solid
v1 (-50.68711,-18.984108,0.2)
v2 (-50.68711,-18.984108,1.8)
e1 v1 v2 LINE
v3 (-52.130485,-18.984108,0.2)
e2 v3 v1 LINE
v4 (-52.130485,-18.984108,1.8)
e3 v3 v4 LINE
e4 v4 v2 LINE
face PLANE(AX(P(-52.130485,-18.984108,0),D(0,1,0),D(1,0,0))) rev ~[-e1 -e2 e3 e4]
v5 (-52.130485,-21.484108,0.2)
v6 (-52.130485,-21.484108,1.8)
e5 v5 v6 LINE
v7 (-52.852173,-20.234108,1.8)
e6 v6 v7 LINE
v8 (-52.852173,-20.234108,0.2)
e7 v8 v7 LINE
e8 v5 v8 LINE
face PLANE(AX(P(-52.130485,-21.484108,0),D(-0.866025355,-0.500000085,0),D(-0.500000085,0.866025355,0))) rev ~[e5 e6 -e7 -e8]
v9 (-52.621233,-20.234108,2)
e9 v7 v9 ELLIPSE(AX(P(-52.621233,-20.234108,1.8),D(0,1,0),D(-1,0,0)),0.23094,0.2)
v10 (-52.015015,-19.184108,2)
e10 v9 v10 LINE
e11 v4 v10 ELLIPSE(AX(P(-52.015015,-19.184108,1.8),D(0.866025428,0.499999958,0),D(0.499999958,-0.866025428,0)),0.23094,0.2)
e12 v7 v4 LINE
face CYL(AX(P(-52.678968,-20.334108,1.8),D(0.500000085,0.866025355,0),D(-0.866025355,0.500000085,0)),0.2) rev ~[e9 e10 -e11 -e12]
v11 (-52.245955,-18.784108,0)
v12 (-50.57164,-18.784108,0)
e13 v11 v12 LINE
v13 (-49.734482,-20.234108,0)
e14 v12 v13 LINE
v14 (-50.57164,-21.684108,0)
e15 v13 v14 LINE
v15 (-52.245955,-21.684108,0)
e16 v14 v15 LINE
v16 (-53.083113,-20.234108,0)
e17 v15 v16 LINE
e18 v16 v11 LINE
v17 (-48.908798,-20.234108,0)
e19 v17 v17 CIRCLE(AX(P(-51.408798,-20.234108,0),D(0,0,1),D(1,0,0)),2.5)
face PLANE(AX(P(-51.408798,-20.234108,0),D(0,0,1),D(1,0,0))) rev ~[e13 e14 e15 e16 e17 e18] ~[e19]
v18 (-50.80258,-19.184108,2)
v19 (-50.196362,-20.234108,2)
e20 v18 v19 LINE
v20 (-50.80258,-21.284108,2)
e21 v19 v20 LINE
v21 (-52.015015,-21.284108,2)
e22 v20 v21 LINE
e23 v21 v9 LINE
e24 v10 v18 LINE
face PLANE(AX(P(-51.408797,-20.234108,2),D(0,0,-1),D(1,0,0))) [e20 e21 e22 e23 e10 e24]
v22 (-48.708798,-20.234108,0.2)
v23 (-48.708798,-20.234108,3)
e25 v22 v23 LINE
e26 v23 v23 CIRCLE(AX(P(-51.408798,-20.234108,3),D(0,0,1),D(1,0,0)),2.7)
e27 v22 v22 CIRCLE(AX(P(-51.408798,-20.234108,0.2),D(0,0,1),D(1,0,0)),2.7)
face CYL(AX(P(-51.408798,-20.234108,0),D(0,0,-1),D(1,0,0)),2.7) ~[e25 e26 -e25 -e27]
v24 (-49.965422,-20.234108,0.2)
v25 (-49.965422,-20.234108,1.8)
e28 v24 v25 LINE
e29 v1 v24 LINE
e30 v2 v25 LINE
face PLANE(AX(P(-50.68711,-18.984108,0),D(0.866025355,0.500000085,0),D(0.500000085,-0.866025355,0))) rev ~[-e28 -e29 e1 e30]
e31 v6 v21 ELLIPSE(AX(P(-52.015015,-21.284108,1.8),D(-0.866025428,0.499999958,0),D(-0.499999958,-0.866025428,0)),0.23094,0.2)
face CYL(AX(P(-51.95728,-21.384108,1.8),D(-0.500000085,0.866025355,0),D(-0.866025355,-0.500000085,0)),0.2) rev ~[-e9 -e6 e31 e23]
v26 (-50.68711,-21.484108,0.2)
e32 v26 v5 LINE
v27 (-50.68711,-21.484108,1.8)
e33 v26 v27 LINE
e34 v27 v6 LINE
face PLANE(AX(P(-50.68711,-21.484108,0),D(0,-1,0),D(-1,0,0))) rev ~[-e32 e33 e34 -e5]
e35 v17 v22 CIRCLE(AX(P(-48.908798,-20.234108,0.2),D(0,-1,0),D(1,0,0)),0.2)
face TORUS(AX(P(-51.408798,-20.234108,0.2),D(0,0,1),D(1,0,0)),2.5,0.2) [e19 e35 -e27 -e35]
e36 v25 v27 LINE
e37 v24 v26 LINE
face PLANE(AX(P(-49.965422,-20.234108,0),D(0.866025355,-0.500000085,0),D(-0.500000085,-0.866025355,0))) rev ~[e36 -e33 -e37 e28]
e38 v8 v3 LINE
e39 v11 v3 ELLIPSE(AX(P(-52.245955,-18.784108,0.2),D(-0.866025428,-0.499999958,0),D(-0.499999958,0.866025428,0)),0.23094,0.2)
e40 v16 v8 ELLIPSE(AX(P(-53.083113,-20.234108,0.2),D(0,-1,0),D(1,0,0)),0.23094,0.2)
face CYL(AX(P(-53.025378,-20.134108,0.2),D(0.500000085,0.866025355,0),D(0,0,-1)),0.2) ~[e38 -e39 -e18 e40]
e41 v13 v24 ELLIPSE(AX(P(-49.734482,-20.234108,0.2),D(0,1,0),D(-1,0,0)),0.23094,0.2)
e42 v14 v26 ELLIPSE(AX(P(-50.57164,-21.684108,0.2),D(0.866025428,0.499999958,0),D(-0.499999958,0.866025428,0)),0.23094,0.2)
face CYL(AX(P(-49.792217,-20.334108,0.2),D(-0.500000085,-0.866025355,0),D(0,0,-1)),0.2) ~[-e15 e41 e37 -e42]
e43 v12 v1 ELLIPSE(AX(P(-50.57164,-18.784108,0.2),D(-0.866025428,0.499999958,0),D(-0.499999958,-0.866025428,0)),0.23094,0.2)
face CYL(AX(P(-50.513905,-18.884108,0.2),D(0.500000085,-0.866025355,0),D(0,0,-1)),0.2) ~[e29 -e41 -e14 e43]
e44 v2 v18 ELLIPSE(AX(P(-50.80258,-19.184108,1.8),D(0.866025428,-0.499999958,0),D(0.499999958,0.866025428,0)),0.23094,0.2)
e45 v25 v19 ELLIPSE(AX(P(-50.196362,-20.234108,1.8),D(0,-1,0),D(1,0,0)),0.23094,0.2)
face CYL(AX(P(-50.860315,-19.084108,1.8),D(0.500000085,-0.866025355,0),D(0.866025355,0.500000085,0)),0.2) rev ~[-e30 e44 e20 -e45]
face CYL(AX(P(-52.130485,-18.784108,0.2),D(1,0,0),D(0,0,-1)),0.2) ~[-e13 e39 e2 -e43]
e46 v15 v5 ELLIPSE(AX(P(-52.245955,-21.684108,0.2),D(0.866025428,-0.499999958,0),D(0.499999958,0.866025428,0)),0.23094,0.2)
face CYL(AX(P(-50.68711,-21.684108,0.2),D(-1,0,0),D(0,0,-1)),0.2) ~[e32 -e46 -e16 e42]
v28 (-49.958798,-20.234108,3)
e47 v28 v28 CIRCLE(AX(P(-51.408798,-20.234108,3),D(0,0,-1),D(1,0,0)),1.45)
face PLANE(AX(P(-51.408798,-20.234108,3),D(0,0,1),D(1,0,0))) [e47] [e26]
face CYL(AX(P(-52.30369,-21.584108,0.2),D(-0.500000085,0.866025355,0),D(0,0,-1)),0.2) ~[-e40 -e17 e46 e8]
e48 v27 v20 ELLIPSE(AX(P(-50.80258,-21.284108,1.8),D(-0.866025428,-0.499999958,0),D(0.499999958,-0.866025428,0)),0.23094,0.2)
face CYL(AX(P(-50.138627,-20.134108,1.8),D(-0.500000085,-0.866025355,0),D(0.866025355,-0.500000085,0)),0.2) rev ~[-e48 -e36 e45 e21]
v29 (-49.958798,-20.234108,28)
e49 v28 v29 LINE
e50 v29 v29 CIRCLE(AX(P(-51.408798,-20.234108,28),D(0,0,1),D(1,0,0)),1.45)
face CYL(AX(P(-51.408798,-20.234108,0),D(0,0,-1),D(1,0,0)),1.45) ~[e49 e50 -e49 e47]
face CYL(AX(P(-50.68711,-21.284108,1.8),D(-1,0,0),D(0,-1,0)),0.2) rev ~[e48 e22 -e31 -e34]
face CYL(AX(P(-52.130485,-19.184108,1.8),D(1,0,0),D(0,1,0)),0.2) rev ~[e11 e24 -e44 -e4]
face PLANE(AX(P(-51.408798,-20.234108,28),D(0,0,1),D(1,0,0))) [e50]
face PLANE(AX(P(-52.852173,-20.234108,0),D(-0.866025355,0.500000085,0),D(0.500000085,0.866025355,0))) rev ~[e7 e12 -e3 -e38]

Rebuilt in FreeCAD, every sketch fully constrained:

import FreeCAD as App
import Part
import Sketcher

V = App.Vector
Q = App.Units.Quantity


def edges_at(feature, points):
    """Names of the edges that pass closest to the given points."""
    edges = feature.Shape.Edges
    near = lambda p: min(range(len(edges)), key=lambda i: edges[i].distToShape(Part.Vertex(*p))[0])
    return sorted({f"Edge{near(p) + 1}" for p in points})

doc = App.newDocument("Part")
body = doc.addObject("PartDesign::Body", "Body")

# Sketch on XY plane
sketch1 = body.newObject("Sketcher::SketchObject", "Sketch")
sketch1.AttachmentSupport = (doc.getObject("XY_Plane"), [""])
sketch1.MapMode = "FlatFace"
sketch1.addGeometry(Part.Circle(V(-51.408798, -20.234108, 0), V(0, 0, 1), 2.7), False)
sketch1.addConstraint([
    Sketcher.Constraint("Diameter", 0, 5.4),
    Sketcher.Constraint("DistanceX", 0, 3, -1, 1, 51.408798),
    Sketcher.Constraint("DistanceY", 0, 3, -1, 1, 20.234108),
])
pad1 = body.newObject("PartDesign::Pad", "Pad")
pad1.Profile = sketch1
pad1.Length = 3

# Sketch on XY plane
sketch2 = body.newObject("Sketcher::SketchObject", "Sketch001")
sketch2.AttachmentSupport = (doc.getObject("XY_Plane"), [""])
sketch2.MapMode = "FlatFace"
sketch2.addGeometry(Part.Circle(V(-51.408798, -20.234108, 0), V(0, 0, 1), 1.45), False)
sketch2.addConstraint([
    Sketcher.Constraint("Diameter", 0, 2.9),
    Sketcher.Constraint("DistanceX", 0, 3, -1, 1, 51.408798),
    Sketcher.Constraint("DistanceY", 0, 3, -1, 1, 20.234108),
])
pad2 = body.newObject("PartDesign::Pad", "Pad001")
pad2.Profile = sketch2
pad2.Length = 28

# Sketch on XY plane
sketch3 = body.newObject("Sketcher::SketchObject", "Sketch002")
sketch3.AttachmentSupport = (doc.getObject("XY_Plane"), [""])
sketch3.MapMode = "FlatFace"
sketch3.addGeometry([
    Part.LineSegment(V(-52.130485, -18.984108, 0), V(-50.68711, -18.984108, 0)),  # 0
    Part.LineSegment(V(-50.68711, -18.984108, 0), V(-49.965422, -20.234108, 0)),  # 1
    Part.LineSegment(V(-49.965422, -20.234108, 0), V(-50.68711, -21.484108, 0)),  # 2
    Part.LineSegment(V(-50.68711, -21.484108, 0), V(-52.130485, -21.484108, 0)),  # 3
    Part.LineSegment(V(-52.130485, -21.484108, 0), V(-52.852173, -20.234108, 0)),  # 4
    Part.LineSegment(V(-52.852173, -20.234108, 0), V(-52.130485, -18.984108, 0)),  # 5
], False)
sketch3.addConstraint([
    Sketcher.Constraint("Coincident", 0, 2, 1, 1),
    Sketcher.Constraint("Coincident", 1, 2, 2, 1),
    Sketcher.Constraint("Coincident", 2, 2, 3, 1),
    Sketcher.Constraint("Coincident", 3, 2, 4, 1),
    Sketcher.Constraint("Coincident", 4, 2, 5, 1),
    Sketcher.Constraint("Coincident", 5, 2, 0, 1),
    Sketcher.Constraint("Horizontal", 0),
    Sketcher.Constraint("Horizontal", 3),
    Sketcher.Constraint("Parallel", 1, 4),
    Sketcher.Constraint("Parallel", 2, 5),
    Sketcher.Constraint("Horizontal", 1, 2, 4, 2),
    Sketcher.Constraint("Vertical", 0, 2, 2, 2),
    Sketcher.Constraint("Vertical", 3, 2, 5, 2),
    Sketcher.Constraint("Angle", 1, Q("-59.999994 deg")),
    Sketcher.Constraint("DistanceY", 2, 2, 0, 2, 2.5),
    Sketcher.Constraint("DistanceX", 0, 1, 0, 2, 1.443375),
    Sketcher.Constraint("DistanceX", 0, 2, -1, 1, 50.68711),
    Sketcher.Constraint("DistanceY", 0, 2, -1, 1, 18.984108),
])
pocket1 = body.newObject("PartDesign::Pocket", "Pocket")
pocket1.Profile = sketch3
pocket1.Length = 2
pocket1.Reversed = True
doc.recompute()

fillet = body.newObject("PartDesign::Fillet", "Fillet")
fillet.Base = (pocket1, edges_at(pocket1, [
    (-54.109, -20.234, 0),
    (-51.409, -18.984, 2),
    (-50.326, -19.609, 2),
    (-50.326, -20.859, 2),
    (-51.409, -21.484, 2),
    (-52.491, -20.859, 2),
    (-52.491, -19.609, 2),
    (-52.491, -19.609, 0),
    (-52.491, -20.859, 0),
    (-51.409, -21.484, 0),
    (-50.326, -20.859, 0),
    (-50.326, -19.609, 0),
    (-51.409, -18.984, 0),
]))
fillet.Radius = 0.2

doc.recompute()
